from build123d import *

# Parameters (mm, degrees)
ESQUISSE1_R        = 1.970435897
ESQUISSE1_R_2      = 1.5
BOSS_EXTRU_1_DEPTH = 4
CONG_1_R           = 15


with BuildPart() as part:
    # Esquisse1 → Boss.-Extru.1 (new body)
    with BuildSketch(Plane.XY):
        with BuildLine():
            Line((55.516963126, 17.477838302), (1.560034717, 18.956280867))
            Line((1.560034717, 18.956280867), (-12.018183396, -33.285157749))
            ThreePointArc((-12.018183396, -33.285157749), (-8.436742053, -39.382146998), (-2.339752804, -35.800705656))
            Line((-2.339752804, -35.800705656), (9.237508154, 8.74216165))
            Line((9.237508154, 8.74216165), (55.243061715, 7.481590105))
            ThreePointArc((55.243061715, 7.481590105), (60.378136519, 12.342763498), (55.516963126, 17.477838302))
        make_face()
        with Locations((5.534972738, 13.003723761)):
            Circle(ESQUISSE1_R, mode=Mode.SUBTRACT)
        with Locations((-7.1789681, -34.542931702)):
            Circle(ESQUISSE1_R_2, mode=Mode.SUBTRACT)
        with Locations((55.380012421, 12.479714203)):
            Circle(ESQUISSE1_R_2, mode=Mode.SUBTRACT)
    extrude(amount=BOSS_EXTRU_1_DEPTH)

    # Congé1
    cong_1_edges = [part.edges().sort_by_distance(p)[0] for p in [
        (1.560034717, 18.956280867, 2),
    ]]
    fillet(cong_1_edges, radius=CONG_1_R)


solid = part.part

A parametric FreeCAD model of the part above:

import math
import FreeCAD as App
import Part
import Sketcher

V = App.Vector
Q = App.Units.Quantity


def edges_at(feature, points):
    """Names of the edges that pass closest to the given points."""
    edges = feature.Shape.Edges
    near = lambda p: min(range(len(edges)), key=lambda i: edges[i].distToShape(Part.Vertex(*p))[0])
    return sorted({f"Edge{near(p) + 1}" for p in points})

doc = App.newDocument("Part")
body = doc.addObject("PartDesign::Body", "Body")

# Sketch on XY plane
sketch1 = body.newObject("Sketcher::SketchObject", "Sketch")
sketch1.AttachmentSupport = (doc.getObject("XY_Plane"), [""])
sketch1.MapMode = "FlatFace"
sketch1.addGeometry([
    Part.LineSegment(V(55.5, 17.5, 0), V(1.6, 19, 0)),  # 0
    Part.LineSegment(V(1.6, 19, 0), V(-12, -33.3, 0)),  # 1
    Part.ArcOfCircle(Part.Circle(V(-7.2, -34.5, 0), V(0, 0, 1), 5), math.radians(165), math.radians(345)),  # 2
    Part.LineSegment(V(-2.3, -35.8, 0), V(9.2, 8.7, 0)),  # 3
    Part.LineSegment(V(9.2, 8.7, 0), V(55.2, 7.5, 0)),  # 4
    Part.ArcOfCircle(Part.Circle(V(55.4, 12.5, 0), V(0, 0, 1), 5), math.radians(-92), math.radians(88)),  # 5
    Part.Circle(V(-7.2, -34.5, 0), V(0, 0, 1), 1.5),  # 6
    Part.Circle(V(5.5, 13, 0), V(0, 0, 1), 2),  # 7
    Part.Circle(V(55.4, 12.5, 0), V(0, 0, 1), 1.5),  # 8
], False)
sketch1.addConstraint([
    Sketcher.Constraint("Coincident", 0, 2, 1, 1),
    Sketcher.Constraint("Tangent", 1, 2, 2, 1),
    Sketcher.Constraint("Tangent", 2, 2, 3, 1),
    Sketcher.Constraint("Coincident", 3, 2, 4, 1),
    Sketcher.Constraint("Tangent", 4, 2, 5, 1),
    Sketcher.Constraint("Tangent", 5, 2, 0, 1),
    Sketcher.Constraint("Coincident", 6, 3, 2, 3),
    Sketcher.Constraint("Coincident", 8, 3, 5, 3),
    Sketcher.Constraint("Equal", 2, 5),
    Sketcher.Constraint("Equal", 6, 8),
    Sketcher.Constraint("Parallel", 1, 3),
    Sketcher.Constraint("Parallel", 0, 4),
    Sketcher.Constraint("Equal", 0, 1),
    Sketcher.Constraint("Diameter", 6, Q("3 mm")),
    Sketcher.Constraint("Radius", 2, Q("5 mm")),
    Sketcher.Constraint("Diameter", 7, Q("3.940872 mm")),
    Sketcher.Constraint("DistanceX", 4, 2, 5, 2, Q("0.273901 mm")),
    Sketcher.Constraint("Distance", 0, Q("53.97718 mm")),
    Sketcher.Constraint("Distance", 3, Q("46.02282 mm")),
    Sketcher.Constraint("DistanceX", 2, 3, -1, 1, Q("7.178968 mm")),
    Sketcher.Constraint("DistanceY", 2, 3, -1, 1, Q("34.542932 mm")),
    Sketcher.Constraint("DistanceX", 2, 3, 7, 3, Q("12.713941 mm")),
    Sketcher.Constraint("DistanceY", 5, 3, 7, 3, Q("0.52401 mm")),
])
pad1 = body.newObject("PartDesign::Pad", "Pad")
pad1.Profile = sketch1
pad1.Length = 4
doc.recompute()

fillet = body.newObject("PartDesign::Fillet", "Fillet")
fillet.Base = (pad1, edges_at(pad1, [(1.56, 18.956, 2)]))
fillet.Radius = 15

doc.recompute()
